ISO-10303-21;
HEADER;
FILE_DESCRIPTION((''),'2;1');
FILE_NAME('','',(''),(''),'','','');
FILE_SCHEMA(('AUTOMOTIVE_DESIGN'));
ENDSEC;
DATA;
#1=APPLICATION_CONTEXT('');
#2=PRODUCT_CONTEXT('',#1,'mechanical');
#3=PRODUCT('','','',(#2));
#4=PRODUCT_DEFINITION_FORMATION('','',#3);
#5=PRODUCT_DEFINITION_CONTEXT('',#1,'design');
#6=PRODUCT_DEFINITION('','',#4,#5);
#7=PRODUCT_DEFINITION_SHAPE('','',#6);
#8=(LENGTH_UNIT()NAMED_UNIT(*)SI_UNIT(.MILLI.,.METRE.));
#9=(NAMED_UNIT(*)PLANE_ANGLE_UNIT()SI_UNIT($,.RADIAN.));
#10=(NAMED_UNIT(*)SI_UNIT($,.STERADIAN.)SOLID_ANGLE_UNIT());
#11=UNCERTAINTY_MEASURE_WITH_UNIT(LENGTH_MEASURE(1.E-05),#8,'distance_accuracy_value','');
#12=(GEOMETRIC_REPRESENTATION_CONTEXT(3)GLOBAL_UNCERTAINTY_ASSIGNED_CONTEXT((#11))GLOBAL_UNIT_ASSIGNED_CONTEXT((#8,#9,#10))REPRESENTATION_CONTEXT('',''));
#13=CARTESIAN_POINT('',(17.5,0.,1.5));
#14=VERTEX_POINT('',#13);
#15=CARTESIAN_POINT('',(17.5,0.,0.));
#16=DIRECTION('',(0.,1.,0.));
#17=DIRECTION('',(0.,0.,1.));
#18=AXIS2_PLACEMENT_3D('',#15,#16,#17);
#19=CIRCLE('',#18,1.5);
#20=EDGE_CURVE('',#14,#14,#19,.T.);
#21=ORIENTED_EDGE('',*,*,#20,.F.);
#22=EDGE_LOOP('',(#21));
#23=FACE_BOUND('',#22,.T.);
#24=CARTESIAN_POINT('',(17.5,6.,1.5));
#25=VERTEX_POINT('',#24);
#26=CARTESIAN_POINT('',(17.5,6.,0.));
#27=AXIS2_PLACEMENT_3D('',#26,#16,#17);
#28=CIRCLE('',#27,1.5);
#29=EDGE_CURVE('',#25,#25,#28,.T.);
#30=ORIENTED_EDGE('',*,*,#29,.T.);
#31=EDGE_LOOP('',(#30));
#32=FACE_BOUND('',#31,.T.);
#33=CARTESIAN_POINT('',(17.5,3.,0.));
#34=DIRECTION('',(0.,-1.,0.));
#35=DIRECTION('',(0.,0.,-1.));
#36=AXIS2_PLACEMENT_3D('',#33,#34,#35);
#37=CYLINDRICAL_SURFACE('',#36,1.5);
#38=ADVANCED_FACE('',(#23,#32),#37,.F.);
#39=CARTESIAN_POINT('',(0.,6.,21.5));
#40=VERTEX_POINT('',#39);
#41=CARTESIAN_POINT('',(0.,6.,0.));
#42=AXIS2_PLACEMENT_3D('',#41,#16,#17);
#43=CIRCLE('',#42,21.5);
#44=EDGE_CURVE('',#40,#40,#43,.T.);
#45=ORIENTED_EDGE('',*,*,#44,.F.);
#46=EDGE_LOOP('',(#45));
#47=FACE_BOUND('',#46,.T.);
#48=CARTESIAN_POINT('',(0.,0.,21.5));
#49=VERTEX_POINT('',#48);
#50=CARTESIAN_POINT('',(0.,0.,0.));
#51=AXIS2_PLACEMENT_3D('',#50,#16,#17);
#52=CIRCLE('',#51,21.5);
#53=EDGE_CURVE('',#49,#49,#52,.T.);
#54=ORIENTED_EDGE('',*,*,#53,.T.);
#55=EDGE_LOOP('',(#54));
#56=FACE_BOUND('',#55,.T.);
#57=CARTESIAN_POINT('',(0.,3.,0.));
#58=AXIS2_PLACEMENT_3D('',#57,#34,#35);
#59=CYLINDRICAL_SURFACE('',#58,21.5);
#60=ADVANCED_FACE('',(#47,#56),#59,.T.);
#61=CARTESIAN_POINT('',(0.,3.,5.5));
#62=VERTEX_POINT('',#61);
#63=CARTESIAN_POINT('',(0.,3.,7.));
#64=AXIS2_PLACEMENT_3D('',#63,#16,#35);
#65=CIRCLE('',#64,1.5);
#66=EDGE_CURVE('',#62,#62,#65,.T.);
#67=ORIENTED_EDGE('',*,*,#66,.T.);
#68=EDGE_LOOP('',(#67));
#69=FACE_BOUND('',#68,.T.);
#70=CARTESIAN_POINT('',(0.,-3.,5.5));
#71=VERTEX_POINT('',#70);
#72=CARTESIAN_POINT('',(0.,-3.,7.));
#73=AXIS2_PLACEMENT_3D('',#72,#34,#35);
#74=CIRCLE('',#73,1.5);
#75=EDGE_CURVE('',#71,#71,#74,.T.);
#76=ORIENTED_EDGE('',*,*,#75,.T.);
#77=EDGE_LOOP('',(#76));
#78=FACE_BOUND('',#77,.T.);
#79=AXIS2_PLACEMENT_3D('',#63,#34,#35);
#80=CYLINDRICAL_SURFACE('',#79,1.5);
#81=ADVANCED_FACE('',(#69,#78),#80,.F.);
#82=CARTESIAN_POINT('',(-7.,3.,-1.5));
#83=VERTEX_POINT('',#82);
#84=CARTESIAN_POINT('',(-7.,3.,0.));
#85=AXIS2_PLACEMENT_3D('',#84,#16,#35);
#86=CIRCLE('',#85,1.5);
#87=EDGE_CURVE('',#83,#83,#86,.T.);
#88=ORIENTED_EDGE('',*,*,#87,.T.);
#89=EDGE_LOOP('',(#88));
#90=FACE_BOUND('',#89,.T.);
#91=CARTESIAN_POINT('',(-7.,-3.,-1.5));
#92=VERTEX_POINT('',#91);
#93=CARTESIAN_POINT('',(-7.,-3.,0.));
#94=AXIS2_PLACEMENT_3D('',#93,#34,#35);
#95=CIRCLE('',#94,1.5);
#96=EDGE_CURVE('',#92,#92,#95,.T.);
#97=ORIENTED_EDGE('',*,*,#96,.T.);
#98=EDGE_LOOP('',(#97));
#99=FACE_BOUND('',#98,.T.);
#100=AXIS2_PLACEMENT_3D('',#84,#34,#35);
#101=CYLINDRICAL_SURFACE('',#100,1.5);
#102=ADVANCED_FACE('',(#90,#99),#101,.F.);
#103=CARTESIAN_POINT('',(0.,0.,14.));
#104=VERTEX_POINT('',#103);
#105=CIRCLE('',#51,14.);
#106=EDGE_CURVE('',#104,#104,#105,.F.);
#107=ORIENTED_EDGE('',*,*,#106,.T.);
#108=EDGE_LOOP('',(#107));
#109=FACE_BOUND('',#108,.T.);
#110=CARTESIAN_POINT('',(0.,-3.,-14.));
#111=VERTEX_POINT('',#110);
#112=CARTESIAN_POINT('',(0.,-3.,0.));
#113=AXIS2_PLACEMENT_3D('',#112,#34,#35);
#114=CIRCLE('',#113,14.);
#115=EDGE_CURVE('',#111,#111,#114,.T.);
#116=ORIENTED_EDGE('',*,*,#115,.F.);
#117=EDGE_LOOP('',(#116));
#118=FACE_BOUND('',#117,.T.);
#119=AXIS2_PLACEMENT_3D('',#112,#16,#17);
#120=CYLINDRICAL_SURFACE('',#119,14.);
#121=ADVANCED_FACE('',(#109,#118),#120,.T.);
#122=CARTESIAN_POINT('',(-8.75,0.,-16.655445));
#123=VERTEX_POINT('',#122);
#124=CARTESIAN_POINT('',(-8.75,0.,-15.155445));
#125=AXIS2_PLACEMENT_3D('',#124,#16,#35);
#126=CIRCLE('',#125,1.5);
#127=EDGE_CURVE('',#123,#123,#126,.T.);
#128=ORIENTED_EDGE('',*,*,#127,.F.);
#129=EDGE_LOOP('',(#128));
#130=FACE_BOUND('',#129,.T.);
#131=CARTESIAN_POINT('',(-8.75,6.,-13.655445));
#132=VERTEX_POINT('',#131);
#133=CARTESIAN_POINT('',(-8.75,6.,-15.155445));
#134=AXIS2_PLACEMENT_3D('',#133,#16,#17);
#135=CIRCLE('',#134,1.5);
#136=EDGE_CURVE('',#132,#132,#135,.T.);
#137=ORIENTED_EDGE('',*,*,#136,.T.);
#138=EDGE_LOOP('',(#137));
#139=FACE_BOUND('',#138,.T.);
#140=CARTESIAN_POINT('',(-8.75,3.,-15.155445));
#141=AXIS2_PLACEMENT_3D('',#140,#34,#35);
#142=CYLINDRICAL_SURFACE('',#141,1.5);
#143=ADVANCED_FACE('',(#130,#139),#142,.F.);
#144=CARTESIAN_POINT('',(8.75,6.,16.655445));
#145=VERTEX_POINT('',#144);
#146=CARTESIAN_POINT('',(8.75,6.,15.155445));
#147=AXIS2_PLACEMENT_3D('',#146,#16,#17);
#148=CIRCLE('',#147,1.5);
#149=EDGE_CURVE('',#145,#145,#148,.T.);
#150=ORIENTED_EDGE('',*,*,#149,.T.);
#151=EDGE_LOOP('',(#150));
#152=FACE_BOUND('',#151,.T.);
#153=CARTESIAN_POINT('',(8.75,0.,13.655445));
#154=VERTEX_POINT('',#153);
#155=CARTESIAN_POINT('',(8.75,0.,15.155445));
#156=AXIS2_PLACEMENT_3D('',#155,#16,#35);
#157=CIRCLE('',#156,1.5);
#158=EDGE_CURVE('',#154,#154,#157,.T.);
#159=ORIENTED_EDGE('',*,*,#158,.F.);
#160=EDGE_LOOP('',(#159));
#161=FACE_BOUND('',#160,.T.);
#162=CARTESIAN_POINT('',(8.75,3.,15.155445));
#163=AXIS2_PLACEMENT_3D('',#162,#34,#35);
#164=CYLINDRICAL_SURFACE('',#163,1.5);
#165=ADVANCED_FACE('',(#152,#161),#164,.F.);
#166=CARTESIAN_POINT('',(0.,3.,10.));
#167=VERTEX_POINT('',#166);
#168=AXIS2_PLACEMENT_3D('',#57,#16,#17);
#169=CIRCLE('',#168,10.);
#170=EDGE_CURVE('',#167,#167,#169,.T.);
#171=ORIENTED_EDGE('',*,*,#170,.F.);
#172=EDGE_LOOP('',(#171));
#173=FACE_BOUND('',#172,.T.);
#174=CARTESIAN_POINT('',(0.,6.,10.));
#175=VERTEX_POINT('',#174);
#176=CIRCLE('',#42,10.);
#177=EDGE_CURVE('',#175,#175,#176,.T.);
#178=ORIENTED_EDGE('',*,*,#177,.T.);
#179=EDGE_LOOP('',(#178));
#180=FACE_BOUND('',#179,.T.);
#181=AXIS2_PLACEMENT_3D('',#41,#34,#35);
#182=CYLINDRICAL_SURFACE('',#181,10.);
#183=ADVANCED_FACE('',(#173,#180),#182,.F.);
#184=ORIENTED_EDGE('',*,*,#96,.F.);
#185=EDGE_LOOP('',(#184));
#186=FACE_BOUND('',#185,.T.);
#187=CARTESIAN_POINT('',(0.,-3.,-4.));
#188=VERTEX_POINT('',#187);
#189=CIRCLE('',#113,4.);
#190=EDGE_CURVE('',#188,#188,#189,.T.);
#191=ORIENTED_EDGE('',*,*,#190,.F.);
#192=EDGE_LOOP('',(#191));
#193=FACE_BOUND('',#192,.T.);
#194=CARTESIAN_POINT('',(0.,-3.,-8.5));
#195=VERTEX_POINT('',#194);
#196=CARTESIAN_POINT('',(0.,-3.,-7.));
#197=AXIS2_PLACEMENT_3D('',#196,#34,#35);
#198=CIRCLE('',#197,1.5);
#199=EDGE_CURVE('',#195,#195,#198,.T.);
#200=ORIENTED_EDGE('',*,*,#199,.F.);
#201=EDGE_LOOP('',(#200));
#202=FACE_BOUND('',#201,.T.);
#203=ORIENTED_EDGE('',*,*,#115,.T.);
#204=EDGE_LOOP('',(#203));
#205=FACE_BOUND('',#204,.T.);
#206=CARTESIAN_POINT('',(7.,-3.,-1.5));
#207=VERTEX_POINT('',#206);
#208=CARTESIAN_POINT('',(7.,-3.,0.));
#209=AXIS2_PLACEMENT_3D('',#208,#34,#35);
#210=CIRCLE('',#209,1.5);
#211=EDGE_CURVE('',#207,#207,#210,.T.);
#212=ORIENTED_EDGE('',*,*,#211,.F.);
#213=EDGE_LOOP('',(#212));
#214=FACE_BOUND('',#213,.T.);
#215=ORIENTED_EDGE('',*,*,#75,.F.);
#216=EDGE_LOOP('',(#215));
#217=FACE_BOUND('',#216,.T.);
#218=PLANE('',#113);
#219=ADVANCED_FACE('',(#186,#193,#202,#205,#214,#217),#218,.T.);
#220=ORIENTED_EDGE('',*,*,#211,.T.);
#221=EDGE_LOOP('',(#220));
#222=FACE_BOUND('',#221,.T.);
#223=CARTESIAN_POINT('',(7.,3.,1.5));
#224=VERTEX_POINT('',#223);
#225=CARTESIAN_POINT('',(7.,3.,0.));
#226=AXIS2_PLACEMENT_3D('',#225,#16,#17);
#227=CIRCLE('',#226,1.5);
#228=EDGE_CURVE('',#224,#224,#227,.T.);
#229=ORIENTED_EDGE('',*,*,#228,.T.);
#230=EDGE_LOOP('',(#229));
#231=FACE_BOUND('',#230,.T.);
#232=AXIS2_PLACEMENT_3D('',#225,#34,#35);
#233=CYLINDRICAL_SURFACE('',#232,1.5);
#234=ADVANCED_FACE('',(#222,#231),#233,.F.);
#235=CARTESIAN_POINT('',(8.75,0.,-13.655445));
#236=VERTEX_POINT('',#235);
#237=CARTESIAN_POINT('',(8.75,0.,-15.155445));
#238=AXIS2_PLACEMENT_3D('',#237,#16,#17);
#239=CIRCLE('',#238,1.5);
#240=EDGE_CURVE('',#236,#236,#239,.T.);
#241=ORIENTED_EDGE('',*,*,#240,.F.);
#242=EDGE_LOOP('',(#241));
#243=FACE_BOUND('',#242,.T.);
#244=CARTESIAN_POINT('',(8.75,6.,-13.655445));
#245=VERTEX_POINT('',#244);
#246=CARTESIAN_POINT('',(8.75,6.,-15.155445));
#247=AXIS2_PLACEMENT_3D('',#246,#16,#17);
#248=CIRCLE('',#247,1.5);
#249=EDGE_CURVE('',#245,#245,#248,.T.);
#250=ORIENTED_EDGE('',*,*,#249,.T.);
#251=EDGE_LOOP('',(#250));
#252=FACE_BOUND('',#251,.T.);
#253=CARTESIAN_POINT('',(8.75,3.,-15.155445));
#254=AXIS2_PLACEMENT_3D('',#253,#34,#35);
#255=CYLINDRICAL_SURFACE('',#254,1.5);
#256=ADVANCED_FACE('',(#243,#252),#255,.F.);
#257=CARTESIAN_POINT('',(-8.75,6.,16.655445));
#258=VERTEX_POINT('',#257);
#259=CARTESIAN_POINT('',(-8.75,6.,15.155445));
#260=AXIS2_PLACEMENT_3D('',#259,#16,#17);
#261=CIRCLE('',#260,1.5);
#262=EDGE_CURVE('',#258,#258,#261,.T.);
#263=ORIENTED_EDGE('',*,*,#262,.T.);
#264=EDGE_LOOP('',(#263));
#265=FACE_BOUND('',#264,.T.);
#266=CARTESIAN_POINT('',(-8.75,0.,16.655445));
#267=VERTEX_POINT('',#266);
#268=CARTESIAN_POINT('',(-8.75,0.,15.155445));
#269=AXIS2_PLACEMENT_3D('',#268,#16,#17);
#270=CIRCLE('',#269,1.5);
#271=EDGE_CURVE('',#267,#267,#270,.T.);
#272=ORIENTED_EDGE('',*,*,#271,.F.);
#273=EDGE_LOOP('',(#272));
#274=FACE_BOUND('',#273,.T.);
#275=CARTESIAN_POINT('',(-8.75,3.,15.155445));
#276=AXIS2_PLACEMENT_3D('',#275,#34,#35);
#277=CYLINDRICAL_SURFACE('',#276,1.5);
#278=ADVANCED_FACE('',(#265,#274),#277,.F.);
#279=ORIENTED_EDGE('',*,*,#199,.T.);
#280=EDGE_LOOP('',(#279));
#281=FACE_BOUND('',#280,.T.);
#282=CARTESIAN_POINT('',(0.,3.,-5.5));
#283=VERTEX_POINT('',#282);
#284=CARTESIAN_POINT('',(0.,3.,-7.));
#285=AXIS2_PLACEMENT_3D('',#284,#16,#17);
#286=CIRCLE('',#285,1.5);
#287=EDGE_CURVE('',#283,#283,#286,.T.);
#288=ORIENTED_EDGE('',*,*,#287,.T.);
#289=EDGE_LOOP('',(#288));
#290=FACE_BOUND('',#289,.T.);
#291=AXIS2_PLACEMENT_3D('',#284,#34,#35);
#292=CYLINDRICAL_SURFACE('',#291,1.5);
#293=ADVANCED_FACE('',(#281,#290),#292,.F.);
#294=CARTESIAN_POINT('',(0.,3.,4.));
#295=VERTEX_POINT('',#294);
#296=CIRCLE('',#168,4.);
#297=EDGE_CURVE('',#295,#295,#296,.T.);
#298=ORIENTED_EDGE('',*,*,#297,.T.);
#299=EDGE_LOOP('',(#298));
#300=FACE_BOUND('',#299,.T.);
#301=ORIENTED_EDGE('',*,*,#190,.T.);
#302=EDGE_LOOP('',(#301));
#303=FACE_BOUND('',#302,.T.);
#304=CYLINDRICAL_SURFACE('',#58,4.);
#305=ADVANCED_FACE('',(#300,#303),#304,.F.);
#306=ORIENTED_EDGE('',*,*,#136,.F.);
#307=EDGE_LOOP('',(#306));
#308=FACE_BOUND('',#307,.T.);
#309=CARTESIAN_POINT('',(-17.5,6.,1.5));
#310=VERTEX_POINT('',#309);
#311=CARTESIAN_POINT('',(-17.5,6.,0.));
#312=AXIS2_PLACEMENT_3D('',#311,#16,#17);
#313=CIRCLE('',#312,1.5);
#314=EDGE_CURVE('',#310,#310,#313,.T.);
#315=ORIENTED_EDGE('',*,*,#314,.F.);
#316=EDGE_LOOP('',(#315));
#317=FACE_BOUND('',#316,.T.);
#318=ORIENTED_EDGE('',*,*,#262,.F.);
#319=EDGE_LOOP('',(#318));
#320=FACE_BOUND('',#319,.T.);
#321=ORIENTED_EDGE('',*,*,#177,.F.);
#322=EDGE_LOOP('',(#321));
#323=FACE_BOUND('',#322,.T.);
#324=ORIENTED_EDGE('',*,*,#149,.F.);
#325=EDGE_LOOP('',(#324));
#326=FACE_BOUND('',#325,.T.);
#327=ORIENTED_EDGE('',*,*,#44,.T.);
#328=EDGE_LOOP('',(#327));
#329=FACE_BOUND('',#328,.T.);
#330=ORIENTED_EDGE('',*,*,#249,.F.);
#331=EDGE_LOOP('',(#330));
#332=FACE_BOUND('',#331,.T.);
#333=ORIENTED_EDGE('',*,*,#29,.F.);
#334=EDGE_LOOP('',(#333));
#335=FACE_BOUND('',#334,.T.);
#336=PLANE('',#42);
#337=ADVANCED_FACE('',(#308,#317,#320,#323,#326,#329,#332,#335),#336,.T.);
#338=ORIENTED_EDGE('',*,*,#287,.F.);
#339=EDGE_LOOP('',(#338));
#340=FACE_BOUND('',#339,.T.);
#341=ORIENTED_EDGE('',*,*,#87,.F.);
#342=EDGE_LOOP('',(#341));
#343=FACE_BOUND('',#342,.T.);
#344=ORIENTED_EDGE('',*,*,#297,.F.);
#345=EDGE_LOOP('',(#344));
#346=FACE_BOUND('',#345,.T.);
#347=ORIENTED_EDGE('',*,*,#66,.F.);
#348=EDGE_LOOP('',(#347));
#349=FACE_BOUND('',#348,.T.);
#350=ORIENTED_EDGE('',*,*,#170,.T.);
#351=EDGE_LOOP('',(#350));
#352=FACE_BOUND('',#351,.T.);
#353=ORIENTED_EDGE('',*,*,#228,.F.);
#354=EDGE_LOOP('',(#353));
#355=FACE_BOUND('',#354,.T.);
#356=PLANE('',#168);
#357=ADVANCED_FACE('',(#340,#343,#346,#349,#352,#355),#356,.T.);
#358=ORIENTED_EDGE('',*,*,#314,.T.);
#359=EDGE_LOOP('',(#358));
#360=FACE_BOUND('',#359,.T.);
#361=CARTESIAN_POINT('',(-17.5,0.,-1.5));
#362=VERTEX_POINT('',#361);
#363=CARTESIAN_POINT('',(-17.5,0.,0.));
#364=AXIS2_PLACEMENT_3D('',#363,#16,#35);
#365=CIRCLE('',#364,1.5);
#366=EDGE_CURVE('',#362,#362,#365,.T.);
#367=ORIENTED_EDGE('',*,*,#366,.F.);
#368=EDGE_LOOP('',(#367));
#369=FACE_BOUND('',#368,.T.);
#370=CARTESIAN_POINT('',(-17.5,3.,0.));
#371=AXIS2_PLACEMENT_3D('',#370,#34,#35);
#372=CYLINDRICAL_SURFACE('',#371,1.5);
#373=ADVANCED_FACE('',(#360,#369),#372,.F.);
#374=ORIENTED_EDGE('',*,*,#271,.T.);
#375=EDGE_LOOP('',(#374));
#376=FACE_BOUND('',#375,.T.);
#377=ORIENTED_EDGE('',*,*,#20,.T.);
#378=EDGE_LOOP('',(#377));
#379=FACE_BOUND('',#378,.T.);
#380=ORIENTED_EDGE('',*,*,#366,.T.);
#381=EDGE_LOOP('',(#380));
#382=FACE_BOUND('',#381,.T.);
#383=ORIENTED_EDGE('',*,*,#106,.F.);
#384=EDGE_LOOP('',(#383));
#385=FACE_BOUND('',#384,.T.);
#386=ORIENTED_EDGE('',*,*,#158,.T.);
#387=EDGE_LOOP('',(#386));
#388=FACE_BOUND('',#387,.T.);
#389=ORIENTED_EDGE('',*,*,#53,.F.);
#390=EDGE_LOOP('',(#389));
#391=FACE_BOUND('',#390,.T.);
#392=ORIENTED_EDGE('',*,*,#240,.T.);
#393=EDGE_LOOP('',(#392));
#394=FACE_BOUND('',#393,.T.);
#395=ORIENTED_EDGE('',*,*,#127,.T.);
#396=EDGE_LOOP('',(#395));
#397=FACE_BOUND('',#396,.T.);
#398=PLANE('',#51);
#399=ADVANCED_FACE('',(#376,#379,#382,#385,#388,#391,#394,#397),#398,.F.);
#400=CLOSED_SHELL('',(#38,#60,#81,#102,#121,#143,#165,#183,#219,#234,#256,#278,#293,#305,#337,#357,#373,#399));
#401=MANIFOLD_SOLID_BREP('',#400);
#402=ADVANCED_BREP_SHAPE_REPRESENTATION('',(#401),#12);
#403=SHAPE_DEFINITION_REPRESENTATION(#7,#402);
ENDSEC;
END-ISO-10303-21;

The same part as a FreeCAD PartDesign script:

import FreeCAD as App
import Part
import Sketcher
Q = App.Units.Quantity

doc = App.newDocument("Part")
body = doc.addObject("PartDesign::Body", "Body")

sketch1 = body.newObject("Sketcher::SketchObject", "Sketch")
sketch1.AttachmentSupport = (doc.getObject("XZ_Plane"), [""])
sketch1.MapMode = "FlatFace"
sketch1.addGeometry([
    Part.Circle(App.Vector(0, 0, 0), App.Vector(0, 0, 1), 21.5),
    Part.Circle(App.Vector(-8.8, -15.2, 0), App.Vector(0, 0, 1), 1.5),
    Part.Circle(App.Vector(0, -7, 0), App.Vector(0, 0, 1), 1.5),
    Part.Circle(App.Vector(-17.5, 0, 0), App.Vector(0, 0, 1), 1.5),
    Part.Circle(App.Vector(-7, 0, 0), App.Vector(0, 0, 1), 1.5),
    Part.Circle(App.Vector(-8.8, 15.2, 0), App.Vector(0, 0, 1), 1.5),
    Part.Circle(App.Vector(8.8, -15.2, 0), App.Vector(0, 0, 1), 1.5),
    Part.Circle(App.Vector(17.5, 0, 0), App.Vector(0, 0, 1), 1.5),
    Part.Circle(App.Vector(0, 0, 0), App.Vector(0, 0, 1), 4),
    Part.Circle(App.Vector(0, 7, 0), App.Vector(0, 0, 1), 1.5),
    Part.Circle(App.Vector(7, 0, 0), App.Vector(0, 0, 1), 1.5),
    Part.Circle(App.Vector(8.8, 15.2, 0), App.Vector(0, 0, 1), 1.5),
], False)
sketch1.addConstraint([
    Sketcher.Constraint("Coincident", 0, 3, -1, 1),
    Sketcher.Constraint("Coincident", 8, 3, -1, 1),
    Sketcher.Constraint("Equal", 1, 2),
    Sketcher.Constraint("Equal", 2, 3),
    Sketcher.Constraint("Equal", 3, 4),
    Sketcher.Constraint("Equal", 4, 5),
    Sketcher.Constraint("Equal", 5, 6),
    Sketcher.Constraint("Equal", 6, 7),
    Sketcher.Constraint("Equal", 7, 9),
    Sketcher.Constraint("Equal", 9, 10),
    Sketcher.Constraint("Equal", 10, 11),
    Sketcher.Constraint("Symmetric", 5, 3, 6, 3, -1, 1),
    Sketcher.Constraint("Symmetric", 3, 3, 7, 3, -1, 1),
    Sketcher.Constraint("Symmetric", 2, 3, 9, 3, -1, 1),
    Sketcher.Constraint("Symmetric", 4, 3, 10, 3, -1, 1),
    Sketcher.Constraint("Symmetric", 1, 3, 11, 3, -1, 1),
    Sketcher.Constraint("Symmetric", 1, 3, 6, 3, -2),
    Sketcher.Constraint("PointOnObject", 2, 3, -2),
    Sketcher.Constraint("PointOnObject", 3, 3, -1),
    Sketcher.Constraint("PointOnObject", 4, 3, -1),
    Sketcher.Constraint("Diameter", 0, Q("43 mm")),
    Sketcher.Constraint("Diameter", 1, Q("3 mm")),
    Sketcher.Constraint("Diameter", 8, Q("8 mm")),
    Sketcher.Constraint("DistanceY", 2, 3, -1, 1, Q("7 mm")),
    Sketcher.Constraint("DistanceX", 4, 3, -1, 1, Q("7 mm")),
    Sketcher.Constraint("DistanceX", 3, 3, -1, 1, Q("17.5 mm")),
    Sketcher.Constraint("DistanceX", 1, 3, 6, 3, Q("17.5 mm")),
    Sketcher.Constraint("DistanceY", 1, 3, 5, 3, Q("30.310889 mm")),
])
pad1 = body.newObject("PartDesign::Pad", "Pad")
pad1.Profile = sketch1
pad1.Length = 3
pad1.Reversed = True

sketch2 = body.newObject("Sketcher::SketchObject", "Sketch001")
sketch2.AttachmentSupport = (doc.getObject("XZ_Plane"), [""])
sketch2.MapMode = "FlatFace"
sketch2.AttachmentOffset = App.Placement(App.Vector(0, 0, -3), App.Rotation())
sketch2.addGeometry([
    Part.Circle(App.Vector(0, 0, 0), App.Vector(0, 0, 1), 21.5),
    Part.Circle(App.Vector(-8.8, -15.2, 0), App.Vector(0, 0, 1), 1.5),
    Part.Circle(App.Vector(-17.5, 0, 0), App.Vector(0, 0, 1), 1.5),
    Part.Circle(App.Vector(-8.8, 15.2, 0), App.Vector(0, 0, 1), 1.5),
    Part.Circle(App.Vector(8.8, -15.2, 0), App.Vector(0, 0, 1), 1.5),
    Part.Circle(App.Vector(17.5, 0, 0), App.Vector(0, 0, 1), 1.5),
    Part.Circle(App.Vector(0, 0, 0), App.Vector(0, 0, 1), 10),
    Part.Circle(App.Vector(8.8, 15.2, 0), App.Vector(0, 0, 1), 1.5),
], False)
sketch2.addConstraint([
    Sketcher.Constraint("Coincident", 0, 3, -1, 1),
    Sketcher.Constraint("Coincident", 6, 3, -1, 1),
    Sketcher.Constraint("Equal", 1, 2),
    Sketcher.Constraint("Equal", 2, 3),
    Sketcher.Constraint("Equal", 3, 4),
    Sketcher.Constraint("Equal", 4, 5),
    Sketcher.Constraint("Equal", 5, 7),
    Sketcher.Constraint("Symmetric", 3, 3, 4, 3, -1, 1),
    Sketcher.Constraint("Symmetric", 2, 3, 5, 3, -1, 1),
    Sketcher.Constraint("Symmetric", 1, 3, 7, 3, -1, 1),
    Sketcher.Constraint("Symmetric", 1, 3, 4, 3, -2),
    Sketcher.Constraint("PointOnObject", 2, 3, -1),
    Sketcher.Constraint("Diameter", 0, Q("43 mm")),
    Sketcher.Constraint("Diameter", 1, Q("3 mm")),
    Sketcher.Constraint("Diameter", 6, Q("20 mm")),
    Sketcher.Constraint("DistanceX", 2, 3, 5, 3, Q("35 mm")),
    Sketcher.Constraint("DistanceX", 1, 3, 4, 3, Q("17.5 mm")),
    Sketcher.Constraint("DistanceY", 1, 3, 3, 3, Q("30.310889 mm")),
])
pad2 = body.newObject("PartDesign::Pad", "Pad001")
pad2.Profile = sketch2
pad2.Length = 3
pad2.Reversed = True

sketch3 = body.newObject("Sketcher::SketchObject", "Sketch002")
sketch3.AttachmentSupport = (doc.getObject("XZ_Plane"), [""])
sketch3.MapMode = "FlatFace"
sketch3.AttachmentOffset = App.Placement(App.Vector(0, 0, 3), App.Rotation())
sketch3.addGeometry([
    Part.Circle(App.Vector(0, 0, 0), App.Vector(0, 0, 1), 14),
    Part.Circle(App.Vector(0, -7, 0), App.Vector(0, 0, 1), 1.5),
    Part.Circle(App.Vector(7, 0, 0), App.Vector(0, 0, 1), 1.5),
    Part.Circle(App.Vector(-7, 0, 0), App.Vector(0, 0, 1), 1.5),
    Part.Circle(App.Vector(0, 0, 0), App.Vector(0, 0, 1), 4),
    Part.Circle(App.Vector(0, 7, 0), App.Vector(0, 0, 1), 1.5),
], False)
sketch3.addConstraint([
    Sketcher.Constraint("Coincident", 0, 3, -1, 1),
    Sketcher.Constraint("Coincident", 4, 3, -1, 1),
    Sketcher.Constraint("Equal", 1, 2),
    Sketcher.Constraint("Equal", 2, 3),
    Sketcher.Constraint("Equal", 3, 5),
    Sketcher.Constraint("Symmetric", 2, 3, 3, 3, -1, 1),
    Sketcher.Constraint("Symmetric", 1, 3, 5, 3, -1, 1),
    Sketcher.Constraint("PointOnObject", 1, 3, -2),
    Sketcher.Constraint("PointOnObject", 2, 3, -1),
    Sketcher.Constraint("Diameter", 0, Q("28 mm")),
    Sketcher.Constraint("Diameter", 1, Q("3 mm")),
    Sketcher.Constraint("Diameter", 4, Q("8 mm")),
    Sketcher.Constraint("DistanceY", 1, 3, -1, 1, Q("7 mm")),
    Sketcher.Constraint("DistanceX", -1, 1, 2, 3, Q("7 mm")),
])
pad3 = body.newObject("PartDesign::Pad", "Pad002")
pad3.Profile = sketch3
pad3.Length = 3
pad3.Reversed = True

doc.recompute()
